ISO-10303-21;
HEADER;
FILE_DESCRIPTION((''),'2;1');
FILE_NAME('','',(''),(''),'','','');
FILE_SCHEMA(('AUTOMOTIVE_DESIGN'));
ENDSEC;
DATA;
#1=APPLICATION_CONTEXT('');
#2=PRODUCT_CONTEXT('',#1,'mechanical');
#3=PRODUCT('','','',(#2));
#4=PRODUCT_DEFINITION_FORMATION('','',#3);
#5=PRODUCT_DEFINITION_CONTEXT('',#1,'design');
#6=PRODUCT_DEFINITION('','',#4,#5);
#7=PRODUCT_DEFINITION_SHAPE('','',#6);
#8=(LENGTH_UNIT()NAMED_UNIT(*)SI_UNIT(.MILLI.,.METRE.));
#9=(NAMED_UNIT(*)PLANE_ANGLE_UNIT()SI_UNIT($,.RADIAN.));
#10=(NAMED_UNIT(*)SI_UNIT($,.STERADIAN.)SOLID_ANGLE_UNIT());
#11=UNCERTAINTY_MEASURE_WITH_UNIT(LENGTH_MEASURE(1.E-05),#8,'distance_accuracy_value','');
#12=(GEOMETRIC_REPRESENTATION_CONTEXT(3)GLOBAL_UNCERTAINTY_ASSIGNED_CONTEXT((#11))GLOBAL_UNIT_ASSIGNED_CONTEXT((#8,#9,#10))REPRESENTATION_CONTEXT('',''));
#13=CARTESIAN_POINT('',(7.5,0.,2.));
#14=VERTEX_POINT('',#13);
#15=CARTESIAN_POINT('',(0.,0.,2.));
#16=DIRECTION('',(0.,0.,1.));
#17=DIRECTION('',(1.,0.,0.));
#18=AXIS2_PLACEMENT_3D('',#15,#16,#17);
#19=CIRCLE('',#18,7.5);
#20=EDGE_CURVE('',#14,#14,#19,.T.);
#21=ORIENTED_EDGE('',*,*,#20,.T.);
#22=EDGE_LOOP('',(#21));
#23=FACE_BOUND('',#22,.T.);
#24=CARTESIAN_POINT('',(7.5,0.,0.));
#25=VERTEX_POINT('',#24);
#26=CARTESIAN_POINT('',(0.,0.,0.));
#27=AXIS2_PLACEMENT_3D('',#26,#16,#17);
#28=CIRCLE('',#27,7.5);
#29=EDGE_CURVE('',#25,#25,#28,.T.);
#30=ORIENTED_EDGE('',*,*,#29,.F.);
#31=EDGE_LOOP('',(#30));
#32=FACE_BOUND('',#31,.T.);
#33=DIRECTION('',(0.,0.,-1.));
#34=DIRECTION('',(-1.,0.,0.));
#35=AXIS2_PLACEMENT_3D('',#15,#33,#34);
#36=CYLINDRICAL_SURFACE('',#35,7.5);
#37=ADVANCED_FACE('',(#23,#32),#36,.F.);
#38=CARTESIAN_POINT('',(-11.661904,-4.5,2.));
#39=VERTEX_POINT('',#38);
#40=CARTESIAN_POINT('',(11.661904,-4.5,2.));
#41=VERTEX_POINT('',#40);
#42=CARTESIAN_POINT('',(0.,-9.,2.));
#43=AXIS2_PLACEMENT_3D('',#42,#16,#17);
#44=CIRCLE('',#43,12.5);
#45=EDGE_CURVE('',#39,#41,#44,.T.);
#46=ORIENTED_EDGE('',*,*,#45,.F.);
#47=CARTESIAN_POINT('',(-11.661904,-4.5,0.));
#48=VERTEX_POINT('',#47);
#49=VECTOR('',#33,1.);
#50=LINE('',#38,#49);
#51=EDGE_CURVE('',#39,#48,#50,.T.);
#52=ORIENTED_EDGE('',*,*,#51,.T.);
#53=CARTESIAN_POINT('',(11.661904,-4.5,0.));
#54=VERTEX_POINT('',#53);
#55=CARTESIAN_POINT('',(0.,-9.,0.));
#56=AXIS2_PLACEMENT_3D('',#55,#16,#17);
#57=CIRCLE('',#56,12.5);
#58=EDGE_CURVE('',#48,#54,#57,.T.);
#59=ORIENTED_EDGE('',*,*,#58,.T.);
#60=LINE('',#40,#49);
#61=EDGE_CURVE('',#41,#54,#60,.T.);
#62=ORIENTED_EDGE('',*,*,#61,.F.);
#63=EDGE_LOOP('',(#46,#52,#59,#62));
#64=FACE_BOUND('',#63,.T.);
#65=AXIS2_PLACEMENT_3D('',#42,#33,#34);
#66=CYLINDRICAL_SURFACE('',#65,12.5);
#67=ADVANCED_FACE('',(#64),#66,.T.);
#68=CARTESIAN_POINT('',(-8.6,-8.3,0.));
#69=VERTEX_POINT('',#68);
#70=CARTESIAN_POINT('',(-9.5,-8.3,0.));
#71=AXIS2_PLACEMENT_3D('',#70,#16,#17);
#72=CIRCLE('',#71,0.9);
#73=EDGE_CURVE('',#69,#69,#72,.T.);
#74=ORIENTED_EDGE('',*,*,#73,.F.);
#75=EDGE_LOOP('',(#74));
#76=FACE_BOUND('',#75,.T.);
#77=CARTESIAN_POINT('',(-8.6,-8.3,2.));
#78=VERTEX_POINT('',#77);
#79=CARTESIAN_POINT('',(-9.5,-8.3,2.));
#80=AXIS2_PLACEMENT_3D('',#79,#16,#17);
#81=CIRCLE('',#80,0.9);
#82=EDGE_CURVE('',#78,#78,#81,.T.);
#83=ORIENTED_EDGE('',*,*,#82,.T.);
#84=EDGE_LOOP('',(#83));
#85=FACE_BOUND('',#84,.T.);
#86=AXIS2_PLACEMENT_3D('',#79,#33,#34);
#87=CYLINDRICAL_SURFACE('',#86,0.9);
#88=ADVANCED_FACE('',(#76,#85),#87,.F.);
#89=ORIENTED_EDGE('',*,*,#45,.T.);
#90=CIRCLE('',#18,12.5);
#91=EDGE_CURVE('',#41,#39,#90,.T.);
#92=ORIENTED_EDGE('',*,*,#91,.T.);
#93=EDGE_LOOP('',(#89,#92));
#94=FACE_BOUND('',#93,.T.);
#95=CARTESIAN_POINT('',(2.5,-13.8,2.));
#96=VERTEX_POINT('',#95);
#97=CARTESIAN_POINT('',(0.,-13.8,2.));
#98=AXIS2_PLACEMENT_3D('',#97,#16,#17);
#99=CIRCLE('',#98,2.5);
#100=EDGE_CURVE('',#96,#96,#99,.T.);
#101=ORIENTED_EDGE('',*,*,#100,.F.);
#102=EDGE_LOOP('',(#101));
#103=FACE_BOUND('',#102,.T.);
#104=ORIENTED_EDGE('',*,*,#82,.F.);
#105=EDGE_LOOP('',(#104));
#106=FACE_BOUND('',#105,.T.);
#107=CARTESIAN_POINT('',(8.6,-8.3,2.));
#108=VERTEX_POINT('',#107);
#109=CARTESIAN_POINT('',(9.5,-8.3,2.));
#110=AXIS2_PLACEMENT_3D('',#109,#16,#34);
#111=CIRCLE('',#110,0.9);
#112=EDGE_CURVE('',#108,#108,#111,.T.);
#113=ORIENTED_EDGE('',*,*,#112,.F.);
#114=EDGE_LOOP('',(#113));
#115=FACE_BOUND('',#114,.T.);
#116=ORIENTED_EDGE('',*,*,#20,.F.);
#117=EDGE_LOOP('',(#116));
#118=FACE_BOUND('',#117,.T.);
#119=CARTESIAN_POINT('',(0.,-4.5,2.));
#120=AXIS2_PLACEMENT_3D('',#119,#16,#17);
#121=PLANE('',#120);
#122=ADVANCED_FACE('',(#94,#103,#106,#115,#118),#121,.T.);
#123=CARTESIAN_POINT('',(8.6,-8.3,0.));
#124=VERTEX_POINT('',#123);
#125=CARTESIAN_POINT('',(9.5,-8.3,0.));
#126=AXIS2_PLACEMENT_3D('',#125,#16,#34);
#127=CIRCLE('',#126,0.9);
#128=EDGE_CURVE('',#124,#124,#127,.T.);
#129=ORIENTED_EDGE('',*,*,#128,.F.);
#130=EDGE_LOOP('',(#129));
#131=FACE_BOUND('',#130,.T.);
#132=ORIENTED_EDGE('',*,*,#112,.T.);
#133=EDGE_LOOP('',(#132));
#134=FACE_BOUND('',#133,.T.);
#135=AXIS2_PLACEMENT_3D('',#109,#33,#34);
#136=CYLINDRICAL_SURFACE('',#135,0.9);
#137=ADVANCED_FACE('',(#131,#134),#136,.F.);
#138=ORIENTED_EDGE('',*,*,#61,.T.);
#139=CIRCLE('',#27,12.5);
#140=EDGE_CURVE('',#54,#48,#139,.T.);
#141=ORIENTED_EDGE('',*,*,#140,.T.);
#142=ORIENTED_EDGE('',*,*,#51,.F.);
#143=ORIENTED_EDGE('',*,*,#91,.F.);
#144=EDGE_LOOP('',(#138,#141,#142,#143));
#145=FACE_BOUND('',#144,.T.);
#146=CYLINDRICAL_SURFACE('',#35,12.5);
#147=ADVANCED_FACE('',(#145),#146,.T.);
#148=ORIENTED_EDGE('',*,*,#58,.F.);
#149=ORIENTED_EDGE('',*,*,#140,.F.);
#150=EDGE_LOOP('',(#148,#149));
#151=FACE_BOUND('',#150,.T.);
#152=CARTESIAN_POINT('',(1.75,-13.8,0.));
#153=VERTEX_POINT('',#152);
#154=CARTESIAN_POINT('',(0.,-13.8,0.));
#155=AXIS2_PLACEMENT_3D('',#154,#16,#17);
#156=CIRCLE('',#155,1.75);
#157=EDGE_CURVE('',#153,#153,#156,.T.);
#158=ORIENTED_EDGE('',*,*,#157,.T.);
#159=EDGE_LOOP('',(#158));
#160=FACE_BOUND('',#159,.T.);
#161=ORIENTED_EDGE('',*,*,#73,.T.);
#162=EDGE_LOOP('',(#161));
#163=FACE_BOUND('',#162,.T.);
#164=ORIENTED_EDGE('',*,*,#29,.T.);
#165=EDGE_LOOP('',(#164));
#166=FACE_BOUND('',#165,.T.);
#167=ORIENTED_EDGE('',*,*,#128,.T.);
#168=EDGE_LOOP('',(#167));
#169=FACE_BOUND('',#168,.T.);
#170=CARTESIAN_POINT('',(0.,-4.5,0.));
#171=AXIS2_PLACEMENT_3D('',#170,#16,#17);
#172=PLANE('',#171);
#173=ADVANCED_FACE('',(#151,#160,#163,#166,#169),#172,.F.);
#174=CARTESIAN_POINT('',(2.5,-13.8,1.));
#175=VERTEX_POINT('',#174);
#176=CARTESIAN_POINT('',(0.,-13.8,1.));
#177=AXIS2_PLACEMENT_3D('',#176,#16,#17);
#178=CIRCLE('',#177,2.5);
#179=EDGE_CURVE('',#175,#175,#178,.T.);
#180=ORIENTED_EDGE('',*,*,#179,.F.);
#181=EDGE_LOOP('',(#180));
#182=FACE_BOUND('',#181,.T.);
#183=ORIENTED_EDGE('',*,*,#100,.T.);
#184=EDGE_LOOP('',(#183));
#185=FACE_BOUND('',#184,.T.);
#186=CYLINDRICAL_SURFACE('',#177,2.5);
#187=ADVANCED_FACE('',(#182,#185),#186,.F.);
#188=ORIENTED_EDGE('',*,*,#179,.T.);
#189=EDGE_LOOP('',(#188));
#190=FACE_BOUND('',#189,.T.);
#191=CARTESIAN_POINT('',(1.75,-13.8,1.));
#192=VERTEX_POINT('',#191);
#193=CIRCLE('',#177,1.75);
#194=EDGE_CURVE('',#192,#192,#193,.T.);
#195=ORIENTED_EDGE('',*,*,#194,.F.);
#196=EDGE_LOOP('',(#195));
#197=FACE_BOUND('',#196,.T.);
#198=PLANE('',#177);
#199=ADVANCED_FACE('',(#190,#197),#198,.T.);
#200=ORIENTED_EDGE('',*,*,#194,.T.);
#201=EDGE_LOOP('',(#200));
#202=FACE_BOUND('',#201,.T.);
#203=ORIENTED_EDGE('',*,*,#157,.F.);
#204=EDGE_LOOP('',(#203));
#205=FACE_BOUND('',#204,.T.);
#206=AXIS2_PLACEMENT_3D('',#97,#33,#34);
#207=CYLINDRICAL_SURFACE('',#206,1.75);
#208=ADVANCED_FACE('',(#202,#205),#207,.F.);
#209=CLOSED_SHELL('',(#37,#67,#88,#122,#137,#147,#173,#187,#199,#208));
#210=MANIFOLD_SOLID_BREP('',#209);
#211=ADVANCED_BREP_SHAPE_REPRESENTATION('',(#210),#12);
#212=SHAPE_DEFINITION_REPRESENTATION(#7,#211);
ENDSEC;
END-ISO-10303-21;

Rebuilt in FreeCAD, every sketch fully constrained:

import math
import FreeCAD as App
import Part
import Sketcher
from FreeCAD import Vector

doc = App.newDocument("Part")
body = doc.addObject("PartDesign::Body", "Body")

sketch1 = body.newObject("Sketcher::SketchObject", "Sketch")
sketch1.AttachmentSupport = (doc.getObject("XY_Plane"), [""])
sketch1.MapMode = "FlatFace"
sketch1.addGeometry([
    Part.ArcOfCircle(Part.Circle(Vector(0, 0, 0), Vector(0, 0, 1), 12.5), math.radians(-21), math.radians(201)),
    Part.ArcOfCircle(Part.Circle(Vector(0, -9, 0), Vector(0, 0, 1), 12.5), math.radians(159), math.radians(381)),
    Part.Circle(Vector(-9.5, -8.3, 0), Vector(0, 0, 1), 0.9),
    Part.Circle(Vector(0, -13.8, 0), Vector(0, 0, 1), 1.8),
    Part.Circle(Vector(9.5, -8.3, 0), Vector(0, 0, 1), 0.9),
    Part.Circle(Vector(0, 0, 0), Vector(0, 0, 1), 7.5),
], False)
sketch1.addConstraint([
    Sketcher.Constraint("Coincident", 0, 1, 1, 2),
    Sketcher.Constraint("Coincident", 1, 1, 0, 2),
    Sketcher.Constraint("Coincident", 0, 3, -1, 1),
    Sketcher.Constraint("Coincident", 5, 3, -1, 1),
    Sketcher.Constraint("Equal", 0, 1),
    Sketcher.Constraint("Equal", 2, 4),
    Sketcher.Constraint("Symmetric", 2, 3, 4, 3, -2),
    Sketcher.Constraint("PointOnObject", 1, 3, -2),
    Sketcher.Constraint("PointOnObject", 3, 3, -2),
    Sketcher.Constraint("Diameter", 5, 15.0),
    Sketcher.Constraint("Diameter", 2, 1.8),
    Sketcher.Constraint("Diameter", 3, 3.5),
    Sketcher.Constraint("Radius", 0, 12.5),
    Sketcher.Constraint("DistanceY", 1, 3, -1, 1, 9.0),
    Sketcher.Constraint("DistanceX", 2, 3, 4, 3, 19.0),
    Sketcher.Constraint("DistanceY", 2, 3, -1, 1, 8.3),
    Sketcher.Constraint("DistanceY", 3, 3, -1, 1, 13.8),
])
pad1 = body.newObject("PartDesign::Pad", "Pad")
pad1.Profile = sketch1
pad1.Length = 2

sketch2 = body.newObject("Sketcher::SketchObject", "Sketch001")
sketch2.AttachmentSupport = (doc.getObject("XY_Plane"), [""])
sketch2.MapMode = "FlatFace"
sketch2.AttachmentOffset = App.Placement(Vector(0, 0, 2), App.Rotation())
sketch2.addGeometry(Part.Circle(Vector(0, -13.8, 0), Vector(0, 0, 1), 2.5), False)
sketch2.addConstraint([
    Sketcher.Constraint("PointOnObject", 0, 3, -2),
    Sketcher.Constraint("Diameter", 0, 5.0),
    Sketcher.Constraint("DistanceY", 0, 3, -1, 1, 13.8),
])
pocket1 = body.newObject("PartDesign::Pocket", "Pocket")
pocket1.Profile = sketch2
pocket1.Length = 1

doc.recompute()
